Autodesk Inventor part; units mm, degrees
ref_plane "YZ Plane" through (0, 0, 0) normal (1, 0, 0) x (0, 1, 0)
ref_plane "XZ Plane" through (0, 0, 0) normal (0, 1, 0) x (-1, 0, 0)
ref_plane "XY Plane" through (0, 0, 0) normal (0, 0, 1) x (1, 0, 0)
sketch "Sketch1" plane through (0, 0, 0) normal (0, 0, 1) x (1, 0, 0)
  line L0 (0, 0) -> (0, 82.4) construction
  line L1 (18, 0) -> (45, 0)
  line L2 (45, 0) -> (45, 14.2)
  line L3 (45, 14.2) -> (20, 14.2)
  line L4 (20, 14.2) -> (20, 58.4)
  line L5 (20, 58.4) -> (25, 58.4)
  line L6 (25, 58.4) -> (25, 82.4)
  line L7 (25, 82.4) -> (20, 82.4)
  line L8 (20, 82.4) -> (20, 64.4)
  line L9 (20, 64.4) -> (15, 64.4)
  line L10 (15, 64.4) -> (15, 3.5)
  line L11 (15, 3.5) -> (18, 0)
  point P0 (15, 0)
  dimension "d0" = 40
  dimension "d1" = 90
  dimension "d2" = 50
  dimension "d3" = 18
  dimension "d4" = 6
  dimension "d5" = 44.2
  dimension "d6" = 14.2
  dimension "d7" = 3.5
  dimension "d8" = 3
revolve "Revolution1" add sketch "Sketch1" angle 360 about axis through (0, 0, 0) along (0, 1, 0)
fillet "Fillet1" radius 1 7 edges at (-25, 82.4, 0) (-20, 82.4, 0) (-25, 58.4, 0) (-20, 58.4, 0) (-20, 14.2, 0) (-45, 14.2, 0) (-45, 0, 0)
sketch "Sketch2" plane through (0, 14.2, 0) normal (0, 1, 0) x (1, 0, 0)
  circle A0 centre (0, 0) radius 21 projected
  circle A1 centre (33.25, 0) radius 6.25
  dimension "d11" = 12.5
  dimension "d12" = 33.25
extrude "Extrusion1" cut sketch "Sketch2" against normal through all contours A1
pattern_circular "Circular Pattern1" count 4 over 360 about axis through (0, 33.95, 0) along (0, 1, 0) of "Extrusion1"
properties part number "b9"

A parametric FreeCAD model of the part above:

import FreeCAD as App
import Part
import Sketcher


def edges_at(feature, points):
    """Names of the edges that pass closest to the given points."""
    edges = feature.Shape.Edges
    near = lambda p: min(range(len(edges)), key=lambda i: edges[i].distToShape(Part.Vertex(*p))[0])
    return sorted({f"Edge{near(p) + 1}" for p in points})


def add_polygon(sketch, points):
    """Adds a closed chain of lines whose ends are joined by coincident constraints."""
    first, n = sketch.GeometryCount, len(points)
    for a, b in zip(points, points[1:] + points[:1]):
        sketch.addGeometry(Part.LineSegment(App.Vector(*a, 0), App.Vector(*b, 0)), False)
    for i in range(n):
        sketch.addConstraint(Sketcher.Constraint("Coincident", first + i, 2, first + (i + 1) % n, 1))

doc = App.newDocument("Part")
body = doc.addObject("PartDesign::Body", "Body")

sketch1 = doc.addObject("Sketcher::SketchObject", "Sketch")
body.addObject(sketch1)
sketch1.AttachmentSupport = (doc.XY_Plane, [""])
sketch1.MapMode = "FlatFace"
add_polygon(sketch1, [(15, 3.5), (18, 0), (45, 0), (45, 14.2), (20, 14.2), (20, 58.4), (25, 58.4), (25, 82.4), (20, 82.4), (20, 64.4), (15, 64.4)])
sketch1.addConstraint(Sketcher.Constraint("Horizontal", 1))
sketch1.addConstraint(Sketcher.Constraint("Vertical", 2))
sketch1.addConstraint(Sketcher.Constraint("Horizontal", 3))
sketch1.addConstraint(Sketcher.Constraint("Vertical", 4))
sketch1.addConstraint(Sketcher.Constraint("Horizontal", 5))
sketch1.addConstraint(Sketcher.Constraint("Vertical", 6))
sketch1.addConstraint(Sketcher.Constraint("Horizontal", 7))
sketch1.addConstraint(Sketcher.Constraint("Vertical", 8))
sketch1.addConstraint(Sketcher.Constraint("Horizontal", 9))
sketch1.addConstraint(Sketcher.Constraint("Vertical", 10))
sketch1.addConstraint(Sketcher.Constraint("PointOnObject", 0, 2, -1))
sketch1.addConstraint(Sketcher.Constraint("Vertical", 4, 2, 7, 2))
sketch1.addConstraint(Sketcher.Constraint("Equal", 7, 9))
sketch1.addConstraint(Sketcher.Constraint("DistanceY", 8, 2, 8, 1, 18.0))
sketch1.addConstraint(Sketcher.Constraint("DistanceY", 2, 1, 2, 2, 14.2))
sketch1.addConstraint(Sketcher.Constraint("DistanceY", 4, 1, 4, 2, 44.2))
sketch1.addConstraint(Sketcher.Constraint("DistanceX", -1, 1, 0, 2, 18.0))
sketch1.addConstraint(Sketcher.Constraint("DistanceY", 4, 2, 8, 2, 6.0))
sketch1.addConstraint(Sketcher.Constraint("DistanceX", 10, 2, 0, 2, 3.0))
sketch1.addConstraint(Sketcher.Constraint("DistanceY", -1, 1, 10, 2, 3.5))
sketch1.addConstraint(Sketcher.Constraint("DistanceX", 1, 1, 1, 2, 27.0))
sketch1.addConstraint(Sketcher.Constraint("DistanceX", 3, 2, 3, 1, 25.0))
revolution = doc.addObject("PartDesign::Revolution", "Revolution")
body.addObject(revolution)
revolution.Profile = sketch1
revolution.ReferenceAxis = (sketch1, ["V_Axis"])
revolution.Angle = 360
doc.recompute()

fillet = doc.addObject("PartDesign::Fillet", "Fillet")
body.addObject(fillet)
fillet.Base = (revolution, edges_at(revolution, [
    (-25, 82.4, 0),
    (-20, 82.4, 0),
    (-25, 58.4, 0),
    (-20, 58.4, 0),
    (-20, 14.2, 0),
    (-45, 14.2, 0),
    (-45, 0, 0),
]))
fillet.Radius = 1

sketch2 = doc.addObject("Sketcher::SketchObject", "Sketch001")
body.addObject(sketch2)
sketch2.AttachmentSupport = (doc.XZ_Plane, [""])
sketch2.MapMode = "FlatFace"
sketch2.AttachmentOffset = App.Placement(App.Vector(0, 0, -14.2), App.Rotation())
sketch2.addGeometry(Part.Circle(App.Vector(33, 0, 0), App.Vector(0, 0, 1), 6), False)
sketch2.addConstraint(Sketcher.Constraint("PointOnObject", 0, 3, -1))
sketch2.addConstraint(Sketcher.Constraint("Diameter", 0, 12.5))
sketch2.addConstraint(Sketcher.Constraint("DistanceX", -1, 1, 0, 3, 33.25))
pocket1 = doc.addObject("PartDesign::Pocket", "Pocket")
body.addObject(pocket1)
pocket1.Profile = sketch2
pocket1.Type = "ThroughAll"
pocket1.Reversed = True
doc.recompute()

polarpattern = doc.addObject("PartDesign::PolarPattern", "PolarPattern")
body.addObject(polarpattern)
polarpattern.Originals = [pocket1]
polarpattern.Axis = (doc.Y_Axis, [""])
polarpattern.Angle = 360
polarpattern.Occurrences = 4
body.Tip = polarpattern

doc.recompute()
